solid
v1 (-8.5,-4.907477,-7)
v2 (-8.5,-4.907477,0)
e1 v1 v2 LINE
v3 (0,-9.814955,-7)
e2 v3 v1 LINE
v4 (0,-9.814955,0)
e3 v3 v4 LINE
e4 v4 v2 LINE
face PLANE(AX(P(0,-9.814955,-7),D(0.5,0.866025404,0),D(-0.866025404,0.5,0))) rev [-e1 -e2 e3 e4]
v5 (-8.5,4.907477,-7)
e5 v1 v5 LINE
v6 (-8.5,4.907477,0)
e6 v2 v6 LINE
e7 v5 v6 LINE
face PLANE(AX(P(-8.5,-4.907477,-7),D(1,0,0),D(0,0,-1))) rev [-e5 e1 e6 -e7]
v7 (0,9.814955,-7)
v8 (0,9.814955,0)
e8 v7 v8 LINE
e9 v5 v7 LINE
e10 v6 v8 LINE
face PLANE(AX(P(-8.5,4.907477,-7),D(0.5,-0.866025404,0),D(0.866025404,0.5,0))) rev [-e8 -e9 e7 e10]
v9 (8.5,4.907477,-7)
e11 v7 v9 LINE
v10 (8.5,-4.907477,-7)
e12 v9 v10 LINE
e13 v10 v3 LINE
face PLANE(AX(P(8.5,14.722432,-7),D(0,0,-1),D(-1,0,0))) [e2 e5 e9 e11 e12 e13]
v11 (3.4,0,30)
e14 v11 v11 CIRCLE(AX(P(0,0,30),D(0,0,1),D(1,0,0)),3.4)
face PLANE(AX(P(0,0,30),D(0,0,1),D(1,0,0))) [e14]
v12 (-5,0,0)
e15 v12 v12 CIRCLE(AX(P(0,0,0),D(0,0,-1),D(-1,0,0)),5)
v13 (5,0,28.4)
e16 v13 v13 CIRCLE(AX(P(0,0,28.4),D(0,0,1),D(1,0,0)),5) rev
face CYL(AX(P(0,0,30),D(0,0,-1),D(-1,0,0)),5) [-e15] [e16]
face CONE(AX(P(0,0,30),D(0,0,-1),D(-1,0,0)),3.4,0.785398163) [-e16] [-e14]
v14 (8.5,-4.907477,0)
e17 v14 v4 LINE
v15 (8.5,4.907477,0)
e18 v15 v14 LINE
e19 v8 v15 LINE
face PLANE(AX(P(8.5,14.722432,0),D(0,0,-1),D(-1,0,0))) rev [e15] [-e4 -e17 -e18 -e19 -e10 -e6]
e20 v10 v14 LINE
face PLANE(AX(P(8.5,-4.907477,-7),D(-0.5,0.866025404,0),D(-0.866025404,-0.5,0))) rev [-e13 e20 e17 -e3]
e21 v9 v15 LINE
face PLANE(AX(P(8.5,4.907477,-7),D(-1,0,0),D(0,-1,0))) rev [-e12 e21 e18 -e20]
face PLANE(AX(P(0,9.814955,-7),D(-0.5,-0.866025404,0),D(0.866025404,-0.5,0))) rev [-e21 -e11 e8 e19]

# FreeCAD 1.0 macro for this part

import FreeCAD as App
import Part
import Sketcher
from FreeCAD import Vector
Q = App.Units.Quantity


def edges_at(feature, points):
    """Names of the edges that pass closest to the given points."""
    edges = feature.Shape.Edges
    near = lambda p: min(range(len(edges)), key=lambda i: edges[i].distToShape(Part.Vertex(*p))[0])
    return sorted({f"Edge{near(p) + 1}" for p in points})


def add_polygon(sketch, points):
    """Adds a closed chain of lines whose ends are joined by coincident constraints."""
    first, n = sketch.GeometryCount, len(points)
    for a, b in zip(points, points[1:] + points[:1]):
        sketch.addGeometry(Part.LineSegment(App.Vector(*a, 0), App.Vector(*b, 0)), False)
    for i in range(n):
        sketch.addConstraint(Sketcher.Constraint("Coincident", first + i, 2, first + (i + 1) % n, 1))

doc = App.newDocument("Part")
body = doc.addObject("PartDesign::Body", "Body")

# Sketch on XY plane
sketch1 = body.newObject("Sketcher::SketchObject", "Sketch")
sketch1.AttachmentSupport = (doc.getObject("XY_Plane"), [""])
sketch1.MapMode = "FlatFace"
sketch1.addGeometry(Part.Circle(Vector(0, 0, 0), Vector(0, 0, 1), 5), False)
sketch1.addConstraint(Sketcher.Constraint("Coincident", 0, 3, -1, 1))
sketch1.addConstraint(Sketcher.Constraint("Diameter", 0, 10.0))
pad1 = body.newObject("PartDesign::Pad", "Pad")
pad1.Profile = sketch1
pad1.Length = 30

# Sketch on XY plane
sketch2 = body.newObject("Sketcher::SketchObject", "Sketch001")
sketch2.AttachmentSupport = (doc.getObject("XY_Plane"), [""])
sketch2.MapMode = "FlatFace"
add_polygon(sketch2, [(0, 10), (8, 5), (8, -5), (0, -10), (-8, -5), (-8, 5)])  # lines 0-5
sketch2.addConstraint(Sketcher.Constraint("Vertical", 1))
sketch2.addConstraint(Sketcher.Constraint("Vertical", 4))
sketch2.addConstraint(Sketcher.Constraint("Symmetric", 0, 2, 3, 2, -1, 1))
sketch2.addConstraint(Sketcher.Constraint("Symmetric", 2, 2, 5, 2, -1, 1))
sketch2.addConstraint(Sketcher.Constraint("PointOnObject", 2, 2, -2))
sketch2.addConstraint(Sketcher.Constraint("Parallel", 2, 5))
sketch2.addConstraint(Sketcher.Constraint("Horizontal", 1, 2, 3, 2))
sketch2.addConstraint(Sketcher.Constraint("Angle", 0, Q("-30 deg")))
sketch2.addConstraint(Sketcher.Constraint("DistanceX", 3, 2, 1, 2, 17.0))
sketch2.addConstraint(Sketcher.Constraint("DistanceY", 1, 2, 1, 1, 9.814955))
pad2 = body.newObject("PartDesign::Pad", "Pad001")
pad2.Profile = sketch2
pad2.Length = 7
pad2.Reversed = True
doc.recompute()

chamfer = body.newObject("PartDesign::Chamfer", "Chamfer")
chamfer.Base = (pad2, edges_at(pad2, [(-5, 0, 30)]))
chamfer.Size = 1.6

doc.recompute()
